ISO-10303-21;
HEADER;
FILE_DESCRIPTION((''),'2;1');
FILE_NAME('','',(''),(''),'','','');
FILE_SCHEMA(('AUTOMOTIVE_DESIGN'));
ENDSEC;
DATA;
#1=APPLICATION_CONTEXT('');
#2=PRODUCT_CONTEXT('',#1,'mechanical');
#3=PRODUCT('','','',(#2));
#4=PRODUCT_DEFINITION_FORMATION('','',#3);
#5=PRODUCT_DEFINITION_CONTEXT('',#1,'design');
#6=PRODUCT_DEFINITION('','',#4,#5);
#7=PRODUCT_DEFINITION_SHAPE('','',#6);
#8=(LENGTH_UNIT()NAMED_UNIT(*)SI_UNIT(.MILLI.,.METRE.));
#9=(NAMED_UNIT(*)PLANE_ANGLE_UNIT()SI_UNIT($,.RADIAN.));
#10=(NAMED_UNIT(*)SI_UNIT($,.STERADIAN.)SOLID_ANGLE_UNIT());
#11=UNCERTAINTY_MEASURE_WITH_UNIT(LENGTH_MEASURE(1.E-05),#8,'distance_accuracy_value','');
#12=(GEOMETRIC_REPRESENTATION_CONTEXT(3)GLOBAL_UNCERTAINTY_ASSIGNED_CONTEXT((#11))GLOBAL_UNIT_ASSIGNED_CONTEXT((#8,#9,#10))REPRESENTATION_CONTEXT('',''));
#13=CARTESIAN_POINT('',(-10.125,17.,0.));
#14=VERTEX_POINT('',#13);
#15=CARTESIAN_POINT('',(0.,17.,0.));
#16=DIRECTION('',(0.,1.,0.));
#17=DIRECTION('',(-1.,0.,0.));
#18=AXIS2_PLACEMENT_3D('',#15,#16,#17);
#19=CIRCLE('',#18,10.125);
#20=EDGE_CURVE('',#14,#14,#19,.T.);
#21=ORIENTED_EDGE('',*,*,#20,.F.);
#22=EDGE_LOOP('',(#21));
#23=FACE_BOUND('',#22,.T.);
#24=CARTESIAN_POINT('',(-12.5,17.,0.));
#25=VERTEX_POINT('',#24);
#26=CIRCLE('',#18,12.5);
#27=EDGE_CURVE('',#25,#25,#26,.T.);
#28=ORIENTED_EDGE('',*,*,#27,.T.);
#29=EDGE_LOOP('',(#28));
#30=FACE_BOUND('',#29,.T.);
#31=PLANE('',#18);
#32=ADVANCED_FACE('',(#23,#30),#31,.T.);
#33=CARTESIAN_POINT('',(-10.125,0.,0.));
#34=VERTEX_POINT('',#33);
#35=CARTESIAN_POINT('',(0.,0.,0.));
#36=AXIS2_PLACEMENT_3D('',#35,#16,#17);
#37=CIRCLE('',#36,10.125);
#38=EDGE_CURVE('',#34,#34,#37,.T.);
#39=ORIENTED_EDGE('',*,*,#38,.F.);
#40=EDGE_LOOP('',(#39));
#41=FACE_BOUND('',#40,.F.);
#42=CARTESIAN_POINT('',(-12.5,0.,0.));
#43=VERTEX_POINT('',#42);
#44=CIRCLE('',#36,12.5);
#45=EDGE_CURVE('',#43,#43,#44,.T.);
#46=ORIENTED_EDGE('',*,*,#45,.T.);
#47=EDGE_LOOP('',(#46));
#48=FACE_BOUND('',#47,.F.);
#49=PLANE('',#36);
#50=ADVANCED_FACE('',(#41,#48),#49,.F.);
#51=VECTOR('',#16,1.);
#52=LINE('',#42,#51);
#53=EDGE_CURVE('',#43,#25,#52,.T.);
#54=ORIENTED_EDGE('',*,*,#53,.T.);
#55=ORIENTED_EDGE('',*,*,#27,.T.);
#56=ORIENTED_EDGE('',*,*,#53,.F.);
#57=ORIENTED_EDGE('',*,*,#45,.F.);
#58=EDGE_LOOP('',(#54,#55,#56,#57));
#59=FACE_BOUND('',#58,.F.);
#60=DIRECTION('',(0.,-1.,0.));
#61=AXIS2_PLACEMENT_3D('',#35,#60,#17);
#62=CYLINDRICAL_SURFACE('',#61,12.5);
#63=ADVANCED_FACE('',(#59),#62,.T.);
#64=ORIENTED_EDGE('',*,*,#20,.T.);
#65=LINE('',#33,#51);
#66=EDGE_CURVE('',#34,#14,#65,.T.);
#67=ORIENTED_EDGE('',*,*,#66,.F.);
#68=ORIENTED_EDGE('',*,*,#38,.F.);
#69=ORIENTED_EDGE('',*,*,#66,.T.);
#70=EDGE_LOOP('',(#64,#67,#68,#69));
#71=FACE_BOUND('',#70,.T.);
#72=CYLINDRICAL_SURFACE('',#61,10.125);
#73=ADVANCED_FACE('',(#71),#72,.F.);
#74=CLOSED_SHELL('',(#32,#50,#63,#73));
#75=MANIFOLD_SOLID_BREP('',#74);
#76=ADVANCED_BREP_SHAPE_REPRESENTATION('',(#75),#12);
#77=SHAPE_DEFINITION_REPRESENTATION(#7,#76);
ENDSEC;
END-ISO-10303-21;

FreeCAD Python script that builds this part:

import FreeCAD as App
import Part
import Sketcher
from FreeCAD import Vector
Q = App.Units.Quantity

doc = App.newDocument("Part")
params = doc.addObject("Spreadsheet::Sheet", "Params")
for row, (alias, value) in enumerate([
    ("sketch1_diameter", "25 mm"),
    ("sketch1_diameter2", "20.25 mm"),
    ("pad1_length", "17 mm"),
], start=1):
    params.set(f"A{row}", alias)
    params.set(f"B{row}", "=" + value)
    params.setAlias(f"B{row}", alias)

body = doc.addObject("PartDesign::Body", "Body")

sketch1 = body.newObject("Sketcher::SketchObject", "Sketch")
sketch1.AttachmentSupport = (doc.getObject("XZ_Plane"), [""])
sketch1.MapMode = "FlatFace"
sketch1.addGeometry([
    Part.Circle(Vector(0, 0, 0), Vector(0, 0, 1), 12),
    Part.Circle(Vector(0, 0, 0), Vector(0, 0, 1), 10),
], False)
sketch1.addConstraint([
    Sketcher.Constraint("Coincident", 0, 3, -1, 1),
    Sketcher.Constraint("Coincident", 1, 3, -1, 1),
    Sketcher.Constraint("Diameter", 0, Q("25 mm")),
    Sketcher.Constraint("Diameter", 1, Q("20.25 mm")),
])
sketch1.setExpression("Constraints[2]", "Params.sketch1_diameter")
sketch1.setExpression("Constraints[3]", "Params.sketch1_diameter2")
pad1 = body.newObject("PartDesign::Pad", "Pad")
pad1.Profile = sketch1
pad1.setExpression("Length", "Params.pad1_length")
pad1.Reversed = True

doc.recompute()
